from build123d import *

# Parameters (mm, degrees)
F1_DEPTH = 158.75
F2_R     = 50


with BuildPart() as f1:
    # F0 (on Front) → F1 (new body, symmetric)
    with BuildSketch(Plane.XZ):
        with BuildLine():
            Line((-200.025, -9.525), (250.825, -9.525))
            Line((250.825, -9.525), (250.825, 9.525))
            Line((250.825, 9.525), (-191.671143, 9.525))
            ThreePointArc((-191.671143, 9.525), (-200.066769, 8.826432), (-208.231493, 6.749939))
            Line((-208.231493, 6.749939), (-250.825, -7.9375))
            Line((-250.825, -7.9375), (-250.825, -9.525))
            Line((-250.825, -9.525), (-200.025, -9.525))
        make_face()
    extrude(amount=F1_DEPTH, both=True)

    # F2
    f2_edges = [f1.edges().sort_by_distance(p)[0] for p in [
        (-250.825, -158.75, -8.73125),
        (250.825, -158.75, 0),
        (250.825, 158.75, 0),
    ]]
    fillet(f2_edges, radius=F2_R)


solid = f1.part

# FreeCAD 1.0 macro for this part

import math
import FreeCAD as App
import Part
import Sketcher

V = App.Vector
Q = App.Units.Quantity


def edges_at(feature, points):
    """Names of the edges that pass closest to the given points."""
    edges = feature.Shape.Edges
    near = lambda p: min(range(len(edges)), key=lambda i: edges[i].distToShape(Part.Vertex(*p))[0])
    return sorted({f"Edge{near(p) + 1}" for p in points})

doc = App.newDocument("Part")
body = doc.addObject("PartDesign::Body", "Body")

sketch1 = body.newObject("Sketcher::SketchObject", "Sketch")
sketch1.AttachmentSupport = (doc.getObject("XZ_Plane"), [""])
sketch1.MapMode = "FlatFace"
sketch1.addGeometry([
    Part.LineSegment(V(250.8, -9.5, 0), V(250.8, 9.5, 0)),
    Part.LineSegment(V(250.8, 9.5, 0), V(-191.7, 9.5, 0)),
    Part.ArcOfCircle(Part.Circle(V(-191.7, -41.3, 0), V(0, 0, 1), 50.8), math.radians(90), math.radians(109.03)),
    Part.LineSegment(V(-208.2, 6.7, 0), V(-250.8, -7.9, 0)),
    Part.LineSegment(V(-250.8, -7.9, 0), V(-250.8, -9.5, 0)),
    Part.LineSegment(V(-250.8, -9.5, 0), V(250.8, -9.5, 0)),
], False)
sketch1.addConstraint([
    Sketcher.Constraint("Coincident", 0, 2, 1, 1),
    Sketcher.Constraint("Tangent", 1, 2, 2, 1),
    Sketcher.Constraint("Tangent", 2, 2, 3, 1),
    Sketcher.Constraint("Coincident", 3, 2, 4, 1),
    Sketcher.Constraint("Coincident", 4, 2, 5, 1),
    Sketcher.Constraint("Coincident", 5, 2, 0, 1),
    Sketcher.Constraint("Vertical", 0),
    Sketcher.Constraint("Horizontal", 1),
    Sketcher.Constraint("Vertical", 4),
    Sketcher.Constraint("Horizontal", 5),
    Sketcher.Constraint("Symmetric", 0, 2, 4, 2, -1, 1),
    Sketcher.Constraint("DistanceX", 5, 1, 5, 2, Q("19.75 in")),
    Sketcher.Constraint("DistanceY", 0, 1, 0, 2, Q("0.75 in")),
    Sketcher.Constraint("DistanceY", 4, 2, 4, 1, Q("0.0625 in")),
    Sketcher.Constraint("Radius", 2, Q("50.799968 mm")),
    Sketcher.Constraint("Distance", 3, Q("45.054719 mm")),
])
pad1 = body.newObject("PartDesign::Pad", "Pad")
pad1.Profile = sketch1
pad1.Length = Q("12.5 in")
pad1.Midplane = True
doc.recompute()

fillet = body.newObject("PartDesign::Fillet", "Fillet")
fillet.Base = (pad1, edges_at(pad1, [(-250.825, -158.75, -8.731), (250.825, -158.75, 0), (250.825, 158.75, 0)]))
fillet.Radius = 50

doc.recompute()
